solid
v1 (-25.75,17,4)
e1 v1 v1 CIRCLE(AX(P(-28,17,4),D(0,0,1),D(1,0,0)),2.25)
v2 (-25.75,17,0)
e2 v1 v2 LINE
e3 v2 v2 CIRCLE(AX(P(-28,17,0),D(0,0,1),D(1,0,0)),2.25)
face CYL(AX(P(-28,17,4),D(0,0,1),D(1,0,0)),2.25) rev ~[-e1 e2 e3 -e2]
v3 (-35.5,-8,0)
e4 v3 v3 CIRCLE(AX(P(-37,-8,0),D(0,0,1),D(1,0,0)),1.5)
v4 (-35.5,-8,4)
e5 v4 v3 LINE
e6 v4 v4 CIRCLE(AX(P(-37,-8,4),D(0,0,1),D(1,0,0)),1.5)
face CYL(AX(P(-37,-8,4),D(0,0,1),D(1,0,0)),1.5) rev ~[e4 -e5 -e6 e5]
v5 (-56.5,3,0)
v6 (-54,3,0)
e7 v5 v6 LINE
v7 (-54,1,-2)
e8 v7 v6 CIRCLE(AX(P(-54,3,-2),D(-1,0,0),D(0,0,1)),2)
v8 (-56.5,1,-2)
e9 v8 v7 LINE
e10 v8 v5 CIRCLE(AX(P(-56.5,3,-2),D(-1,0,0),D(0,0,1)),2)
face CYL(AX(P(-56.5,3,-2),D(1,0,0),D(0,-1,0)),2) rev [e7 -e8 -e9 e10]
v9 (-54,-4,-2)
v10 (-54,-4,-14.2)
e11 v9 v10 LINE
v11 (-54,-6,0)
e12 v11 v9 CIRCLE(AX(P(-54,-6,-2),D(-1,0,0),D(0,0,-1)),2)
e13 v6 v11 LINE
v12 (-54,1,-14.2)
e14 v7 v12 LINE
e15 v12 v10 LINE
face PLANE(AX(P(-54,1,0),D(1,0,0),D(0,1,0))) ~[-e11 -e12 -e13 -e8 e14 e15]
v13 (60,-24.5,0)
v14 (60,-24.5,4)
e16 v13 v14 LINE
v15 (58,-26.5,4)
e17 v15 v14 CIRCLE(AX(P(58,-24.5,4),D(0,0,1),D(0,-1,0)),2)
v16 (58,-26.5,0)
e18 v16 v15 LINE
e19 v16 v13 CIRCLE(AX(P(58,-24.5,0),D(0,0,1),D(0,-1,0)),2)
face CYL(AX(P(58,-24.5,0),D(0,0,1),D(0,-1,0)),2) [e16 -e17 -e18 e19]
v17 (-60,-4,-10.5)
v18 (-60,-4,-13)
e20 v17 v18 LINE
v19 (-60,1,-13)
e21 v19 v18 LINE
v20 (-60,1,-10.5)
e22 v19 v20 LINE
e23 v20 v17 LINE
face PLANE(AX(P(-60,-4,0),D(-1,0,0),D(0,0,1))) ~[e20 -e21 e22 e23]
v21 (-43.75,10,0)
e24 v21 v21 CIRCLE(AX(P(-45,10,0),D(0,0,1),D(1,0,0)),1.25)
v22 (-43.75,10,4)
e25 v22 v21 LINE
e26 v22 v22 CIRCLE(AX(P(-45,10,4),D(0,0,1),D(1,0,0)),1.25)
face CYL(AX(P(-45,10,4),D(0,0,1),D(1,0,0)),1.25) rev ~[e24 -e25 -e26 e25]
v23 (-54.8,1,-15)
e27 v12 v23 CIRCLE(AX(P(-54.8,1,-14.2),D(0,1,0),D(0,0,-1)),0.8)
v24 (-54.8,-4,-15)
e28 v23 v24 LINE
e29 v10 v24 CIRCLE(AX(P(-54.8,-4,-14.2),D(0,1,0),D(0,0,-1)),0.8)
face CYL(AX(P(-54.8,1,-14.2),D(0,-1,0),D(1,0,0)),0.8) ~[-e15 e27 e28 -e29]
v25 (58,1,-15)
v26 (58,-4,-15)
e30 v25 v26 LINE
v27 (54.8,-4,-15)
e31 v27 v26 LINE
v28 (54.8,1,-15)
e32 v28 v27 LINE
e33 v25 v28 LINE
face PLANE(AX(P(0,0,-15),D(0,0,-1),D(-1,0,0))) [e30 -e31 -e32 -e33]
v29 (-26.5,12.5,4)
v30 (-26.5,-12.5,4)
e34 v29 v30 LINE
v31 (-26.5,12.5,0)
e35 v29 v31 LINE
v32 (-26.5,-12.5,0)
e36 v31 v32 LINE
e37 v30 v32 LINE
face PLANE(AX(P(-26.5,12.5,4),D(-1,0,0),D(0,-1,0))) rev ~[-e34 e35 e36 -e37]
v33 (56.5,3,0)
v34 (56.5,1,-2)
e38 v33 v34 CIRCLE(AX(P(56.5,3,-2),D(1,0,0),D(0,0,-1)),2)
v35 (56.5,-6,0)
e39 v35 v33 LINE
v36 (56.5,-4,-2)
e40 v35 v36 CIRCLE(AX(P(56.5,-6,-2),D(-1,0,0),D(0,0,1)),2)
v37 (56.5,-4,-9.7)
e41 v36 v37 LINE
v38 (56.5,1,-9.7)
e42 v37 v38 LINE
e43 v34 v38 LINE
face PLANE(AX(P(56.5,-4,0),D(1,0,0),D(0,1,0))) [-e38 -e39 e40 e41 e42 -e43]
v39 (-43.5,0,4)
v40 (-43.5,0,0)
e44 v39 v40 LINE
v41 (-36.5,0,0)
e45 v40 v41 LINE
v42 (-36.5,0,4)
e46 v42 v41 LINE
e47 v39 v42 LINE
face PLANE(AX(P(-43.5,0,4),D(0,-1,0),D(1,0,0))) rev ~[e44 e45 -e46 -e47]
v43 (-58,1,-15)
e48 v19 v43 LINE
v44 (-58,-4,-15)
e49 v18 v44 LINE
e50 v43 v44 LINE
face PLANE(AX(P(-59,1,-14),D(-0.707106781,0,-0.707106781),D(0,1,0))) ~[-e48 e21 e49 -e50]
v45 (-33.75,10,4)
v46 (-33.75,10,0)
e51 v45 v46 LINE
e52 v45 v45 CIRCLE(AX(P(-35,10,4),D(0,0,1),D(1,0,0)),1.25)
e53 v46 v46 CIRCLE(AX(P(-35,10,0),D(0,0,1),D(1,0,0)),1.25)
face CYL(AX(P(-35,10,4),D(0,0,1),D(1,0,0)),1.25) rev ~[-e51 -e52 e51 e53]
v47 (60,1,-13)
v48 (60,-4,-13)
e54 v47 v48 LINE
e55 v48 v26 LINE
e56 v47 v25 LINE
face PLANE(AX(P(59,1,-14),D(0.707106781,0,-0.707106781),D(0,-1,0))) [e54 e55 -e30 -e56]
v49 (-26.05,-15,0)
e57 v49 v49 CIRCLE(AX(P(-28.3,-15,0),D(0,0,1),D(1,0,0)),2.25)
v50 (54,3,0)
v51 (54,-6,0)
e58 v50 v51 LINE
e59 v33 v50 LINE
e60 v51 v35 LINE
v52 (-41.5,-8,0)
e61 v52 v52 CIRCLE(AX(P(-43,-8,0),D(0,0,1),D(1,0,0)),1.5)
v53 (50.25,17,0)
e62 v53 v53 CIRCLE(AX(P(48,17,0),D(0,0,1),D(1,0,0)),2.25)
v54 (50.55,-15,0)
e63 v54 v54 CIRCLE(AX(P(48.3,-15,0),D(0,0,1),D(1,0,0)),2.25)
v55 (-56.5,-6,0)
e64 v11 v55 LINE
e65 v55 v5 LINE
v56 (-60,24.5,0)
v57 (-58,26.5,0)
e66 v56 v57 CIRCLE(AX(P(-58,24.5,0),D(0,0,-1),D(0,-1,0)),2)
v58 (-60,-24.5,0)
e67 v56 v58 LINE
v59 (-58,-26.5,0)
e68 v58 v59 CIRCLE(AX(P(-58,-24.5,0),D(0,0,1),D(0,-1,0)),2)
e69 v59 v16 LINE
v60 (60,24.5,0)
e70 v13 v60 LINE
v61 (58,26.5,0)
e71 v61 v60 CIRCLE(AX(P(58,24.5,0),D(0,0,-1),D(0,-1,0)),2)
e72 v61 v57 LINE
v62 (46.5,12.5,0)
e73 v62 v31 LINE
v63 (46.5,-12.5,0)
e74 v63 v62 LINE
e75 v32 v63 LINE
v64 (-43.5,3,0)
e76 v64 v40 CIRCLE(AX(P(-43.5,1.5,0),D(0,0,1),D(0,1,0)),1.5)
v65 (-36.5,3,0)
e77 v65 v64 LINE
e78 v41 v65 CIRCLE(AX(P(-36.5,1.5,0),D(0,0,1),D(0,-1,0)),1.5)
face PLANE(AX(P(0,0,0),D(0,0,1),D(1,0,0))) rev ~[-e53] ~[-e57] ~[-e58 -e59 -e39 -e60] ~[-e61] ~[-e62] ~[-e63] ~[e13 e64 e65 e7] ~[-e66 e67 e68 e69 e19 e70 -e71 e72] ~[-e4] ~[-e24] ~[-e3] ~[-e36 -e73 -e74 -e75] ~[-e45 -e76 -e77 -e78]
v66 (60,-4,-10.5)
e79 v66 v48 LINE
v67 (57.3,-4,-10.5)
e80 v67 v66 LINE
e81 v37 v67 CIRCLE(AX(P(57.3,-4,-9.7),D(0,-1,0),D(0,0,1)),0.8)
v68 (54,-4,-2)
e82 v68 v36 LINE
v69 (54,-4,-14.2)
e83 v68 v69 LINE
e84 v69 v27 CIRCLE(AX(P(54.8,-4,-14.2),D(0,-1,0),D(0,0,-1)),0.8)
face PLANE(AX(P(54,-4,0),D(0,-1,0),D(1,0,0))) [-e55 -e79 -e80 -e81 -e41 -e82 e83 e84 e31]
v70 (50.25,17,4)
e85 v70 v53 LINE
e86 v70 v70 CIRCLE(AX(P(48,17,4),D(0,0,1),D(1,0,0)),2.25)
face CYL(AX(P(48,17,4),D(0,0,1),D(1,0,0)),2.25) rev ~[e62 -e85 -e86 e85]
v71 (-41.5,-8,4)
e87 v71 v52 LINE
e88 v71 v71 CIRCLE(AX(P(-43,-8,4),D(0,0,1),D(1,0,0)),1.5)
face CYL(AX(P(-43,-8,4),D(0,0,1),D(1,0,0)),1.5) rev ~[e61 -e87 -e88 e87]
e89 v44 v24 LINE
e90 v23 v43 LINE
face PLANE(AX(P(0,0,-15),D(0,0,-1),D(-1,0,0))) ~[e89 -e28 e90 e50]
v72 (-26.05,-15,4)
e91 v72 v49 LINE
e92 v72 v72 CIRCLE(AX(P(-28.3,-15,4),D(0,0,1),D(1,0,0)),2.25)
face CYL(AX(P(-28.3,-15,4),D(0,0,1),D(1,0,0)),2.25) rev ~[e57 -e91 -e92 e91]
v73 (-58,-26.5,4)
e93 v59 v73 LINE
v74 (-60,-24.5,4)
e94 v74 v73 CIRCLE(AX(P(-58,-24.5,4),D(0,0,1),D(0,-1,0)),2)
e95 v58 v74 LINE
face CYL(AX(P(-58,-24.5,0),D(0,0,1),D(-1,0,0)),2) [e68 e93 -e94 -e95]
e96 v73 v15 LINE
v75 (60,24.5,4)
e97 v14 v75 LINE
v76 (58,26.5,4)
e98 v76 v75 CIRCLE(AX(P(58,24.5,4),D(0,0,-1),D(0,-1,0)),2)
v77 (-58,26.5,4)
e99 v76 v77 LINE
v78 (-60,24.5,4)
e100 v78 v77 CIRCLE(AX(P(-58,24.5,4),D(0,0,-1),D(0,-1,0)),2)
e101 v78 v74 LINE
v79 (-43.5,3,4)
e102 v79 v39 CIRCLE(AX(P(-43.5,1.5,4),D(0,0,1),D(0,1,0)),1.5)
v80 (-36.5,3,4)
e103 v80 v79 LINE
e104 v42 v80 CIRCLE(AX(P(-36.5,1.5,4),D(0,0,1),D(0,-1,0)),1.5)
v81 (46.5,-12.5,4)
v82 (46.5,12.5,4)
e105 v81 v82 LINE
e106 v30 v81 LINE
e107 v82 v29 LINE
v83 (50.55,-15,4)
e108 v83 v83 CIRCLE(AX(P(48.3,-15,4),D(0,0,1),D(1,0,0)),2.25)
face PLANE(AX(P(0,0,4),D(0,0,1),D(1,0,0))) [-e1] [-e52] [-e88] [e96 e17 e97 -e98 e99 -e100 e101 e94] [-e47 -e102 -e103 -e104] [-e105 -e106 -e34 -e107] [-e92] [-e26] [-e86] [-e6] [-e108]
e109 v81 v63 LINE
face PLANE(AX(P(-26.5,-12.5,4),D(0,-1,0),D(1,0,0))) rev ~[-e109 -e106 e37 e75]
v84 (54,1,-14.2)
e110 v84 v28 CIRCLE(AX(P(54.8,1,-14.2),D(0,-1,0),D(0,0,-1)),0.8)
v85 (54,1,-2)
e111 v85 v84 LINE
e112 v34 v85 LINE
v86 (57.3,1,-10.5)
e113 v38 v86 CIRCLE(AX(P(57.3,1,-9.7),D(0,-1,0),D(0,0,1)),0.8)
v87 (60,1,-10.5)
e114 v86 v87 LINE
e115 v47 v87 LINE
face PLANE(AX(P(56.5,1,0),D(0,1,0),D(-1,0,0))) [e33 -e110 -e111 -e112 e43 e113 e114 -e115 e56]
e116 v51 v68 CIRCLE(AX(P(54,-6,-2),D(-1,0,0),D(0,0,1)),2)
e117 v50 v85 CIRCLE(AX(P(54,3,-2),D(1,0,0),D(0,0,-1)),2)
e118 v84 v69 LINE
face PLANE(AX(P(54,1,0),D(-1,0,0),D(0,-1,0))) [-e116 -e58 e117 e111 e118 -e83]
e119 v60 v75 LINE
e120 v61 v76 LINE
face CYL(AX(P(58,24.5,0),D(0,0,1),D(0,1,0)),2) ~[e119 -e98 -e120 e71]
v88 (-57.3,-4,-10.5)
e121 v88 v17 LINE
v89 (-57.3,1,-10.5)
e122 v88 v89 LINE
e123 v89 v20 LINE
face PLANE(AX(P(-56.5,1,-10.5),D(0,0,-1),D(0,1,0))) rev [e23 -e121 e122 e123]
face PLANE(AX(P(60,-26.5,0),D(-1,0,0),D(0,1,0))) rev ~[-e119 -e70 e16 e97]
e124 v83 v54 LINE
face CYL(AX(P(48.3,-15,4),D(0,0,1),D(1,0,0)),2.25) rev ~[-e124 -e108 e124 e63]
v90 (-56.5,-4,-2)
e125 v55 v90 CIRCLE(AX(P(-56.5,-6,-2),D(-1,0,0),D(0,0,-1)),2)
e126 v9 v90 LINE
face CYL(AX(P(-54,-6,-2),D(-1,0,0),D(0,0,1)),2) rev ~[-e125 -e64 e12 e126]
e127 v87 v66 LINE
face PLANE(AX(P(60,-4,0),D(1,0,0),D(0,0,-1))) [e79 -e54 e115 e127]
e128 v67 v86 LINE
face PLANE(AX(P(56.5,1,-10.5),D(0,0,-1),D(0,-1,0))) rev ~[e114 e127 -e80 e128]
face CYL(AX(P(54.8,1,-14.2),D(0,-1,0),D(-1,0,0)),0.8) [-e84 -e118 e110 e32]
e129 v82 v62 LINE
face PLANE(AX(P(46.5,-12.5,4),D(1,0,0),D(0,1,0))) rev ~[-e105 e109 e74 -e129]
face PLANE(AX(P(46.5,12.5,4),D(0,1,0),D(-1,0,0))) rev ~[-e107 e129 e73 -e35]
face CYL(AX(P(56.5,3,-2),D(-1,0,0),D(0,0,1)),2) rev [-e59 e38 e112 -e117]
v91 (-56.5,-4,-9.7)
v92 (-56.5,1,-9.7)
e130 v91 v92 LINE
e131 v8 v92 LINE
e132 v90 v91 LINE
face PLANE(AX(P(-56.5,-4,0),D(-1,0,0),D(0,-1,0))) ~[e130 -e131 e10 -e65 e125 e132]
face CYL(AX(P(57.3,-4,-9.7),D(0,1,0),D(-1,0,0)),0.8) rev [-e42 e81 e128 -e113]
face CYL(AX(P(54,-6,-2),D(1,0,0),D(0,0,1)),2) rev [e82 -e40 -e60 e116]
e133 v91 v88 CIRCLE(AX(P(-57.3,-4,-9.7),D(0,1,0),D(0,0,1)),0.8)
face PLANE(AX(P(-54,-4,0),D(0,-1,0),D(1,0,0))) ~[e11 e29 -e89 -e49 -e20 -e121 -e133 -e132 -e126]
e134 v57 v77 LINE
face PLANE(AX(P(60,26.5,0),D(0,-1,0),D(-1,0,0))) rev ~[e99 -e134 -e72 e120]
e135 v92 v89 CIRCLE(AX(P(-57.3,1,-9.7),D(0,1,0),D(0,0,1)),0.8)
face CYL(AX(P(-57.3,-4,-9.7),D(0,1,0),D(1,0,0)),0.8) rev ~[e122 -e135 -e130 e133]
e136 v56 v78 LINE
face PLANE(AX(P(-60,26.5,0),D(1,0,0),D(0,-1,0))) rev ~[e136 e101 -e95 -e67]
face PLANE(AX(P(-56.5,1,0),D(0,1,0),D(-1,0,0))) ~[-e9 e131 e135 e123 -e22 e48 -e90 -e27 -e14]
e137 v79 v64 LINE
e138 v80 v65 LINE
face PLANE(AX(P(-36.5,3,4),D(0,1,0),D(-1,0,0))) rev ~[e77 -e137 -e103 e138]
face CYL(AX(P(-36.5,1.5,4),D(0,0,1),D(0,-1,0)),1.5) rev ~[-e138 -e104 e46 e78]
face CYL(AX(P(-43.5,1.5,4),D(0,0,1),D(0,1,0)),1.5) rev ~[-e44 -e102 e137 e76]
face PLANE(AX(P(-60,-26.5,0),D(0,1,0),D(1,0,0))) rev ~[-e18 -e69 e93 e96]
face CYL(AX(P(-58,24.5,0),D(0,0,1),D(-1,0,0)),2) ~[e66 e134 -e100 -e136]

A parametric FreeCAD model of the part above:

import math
import FreeCAD as App
import Part
import Sketcher
from FreeCAD import Vector


def edges_at(feature, points):
    """Names of the edges that pass closest to the given points."""
    edges = feature.Shape.Edges
    near = lambda p: min(range(len(edges)), key=lambda i: edges[i].distToShape(Part.Vertex(*p))[0])
    return sorted({f"Edge{near(p) + 1}" for p in points})


def add_polygon(sketch, points):
    """Adds a closed chain of lines whose ends are joined by coincident constraints."""
    first, n = sketch.GeometryCount, len(points)
    for a, b in zip(points, points[1:] + points[:1]):
        sketch.addGeometry(Part.LineSegment(App.Vector(*a, 0), App.Vector(*b, 0)), False)
    for i in range(n):
        sketch.addConstraint(Sketcher.Constraint("Coincident", first + i, 2, first + (i + 1) % n, 1))

doc = App.newDocument("Part")
body = doc.addObject("PartDesign::Body", "Body")

# Sketch on XY plane
sketch1 = doc.addObject("Sketcher::SketchObject", "Sketch")
body.addObject(sketch1)
sketch1.AttachmentSupport = (doc.XY_Plane, [""])
sketch1.MapMode = "FlatFace"
add_polygon(sketch1, [(-60, 26.5), (-60, -26.5), (60, -26.5), (60, 26.5)])  # lines 0-3
sketch1.addConstraint([
    Sketcher.Constraint("Vertical", 0),
    Sketcher.Constraint("Horizontal", 1),
    Sketcher.Constraint("Vertical", 2),
    Sketcher.Constraint("Horizontal", 3),
    Sketcher.Constraint("Symmetric", 0, 2, 2, 2, -1, 1),
    Sketcher.Constraint("DistanceX", 1, 1, 1, 2, 120.0),
    Sketcher.Constraint("DistanceY", 0, 2, 0, 1, 53.0),
])
pad1 = doc.addObject("PartDesign::Pad", "Pad")
body.addObject(pad1)
pad1.Profile = sketch1
pad1.Length = 4

# Sketch on XY plane
sketch2 = doc.addObject("Sketcher::SketchObject", "Sketch001")
body.addObject(sketch2)
sketch2.AttachmentSupport = (doc.XY_Plane, [""])
sketch2.MapMode = "FlatFace"
add_polygon(sketch2, [(56.5, -4), (54, -4), (54, 1), (56.5, 1)])  # lines 0-3
sketch2.addConstraint([
    Sketcher.Constraint("Horizontal", 0),
    Sketcher.Constraint("Vertical", 1),
    Sketcher.Constraint("Horizontal", 2),
    Sketcher.Constraint("Vertical", 3),
    Sketcher.Constraint("DistanceY", 1, 1, 1, 2, 5.0),
    Sketcher.Constraint("DistanceX", 0, 2, 0, 1, 2.5),
    Sketcher.Constraint("DistanceX", -1, 1, 0, 2, 54.0),
    Sketcher.Constraint("DistanceY", 0, 2, -1, 1, 4.0),
])
pad2 = doc.addObject("PartDesign::Pad", "Pad001")
body.addObject(pad2)
pad2.Profile = sketch2
pad2.Length = 15
pad2.Reversed = True

# Sketch on YZ plane
sketch3 = doc.addObject("Sketcher::SketchObject", "Sketch002")
body.addObject(sketch3)
sketch3.AttachmentSupport = (doc.YZ_Plane, [""])
sketch3.MapMode = "FlatFace"
sketch3.AttachmentOffset = App.Placement(Vector(0, 0, 56.5), App.Rotation())
add_polygon(sketch3, [(1, -15), (1, -10.5), (-4, -10.5), (-4, -15)])  # lines 0-3
sketch3.addConstraint([
    Sketcher.Constraint("Vertical", 0),
    Sketcher.Constraint("Horizontal", 1),
    Sketcher.Constraint("Vertical", 2),
    Sketcher.Constraint("Horizontal", 3),
    Sketcher.Constraint("DistanceX", 1, 2, 1, 1, 5.0),
    Sketcher.Constraint("DistanceY", 0, 1, 0, 2, 4.5),
    Sketcher.Constraint("DistanceX", -1, 1, 0, 2, 1.0),
    Sketcher.Constraint("DistanceY", 2, 2, -1, 1, 15.0),
])
pad3 = doc.addObject("PartDesign::Pad", "Pad002")
body.addObject(pad3)
pad3.Profile = sketch3
pad3.Length = 3.5
doc.recompute()

mirrored = doc.addObject("PartDesign::Mirrored", "Mirrored")
body.addObject(mirrored)
mirrored.Originals = [pad2, pad3]
mirrored.MirrorPlane = (doc.YZ_Plane, [""])
body.Tip = mirrored

# Sketch on XY plane
sketch4 = doc.addObject("Sketcher::SketchObject", "Sketch003")
body.addObject(sketch4)
sketch4.AttachmentSupport = (doc.XY_Plane, [""])
sketch4.MapMode = "FlatFace"
sketch4.AttachmentOffset = App.Placement(Vector(0, 0, 4), App.Rotation())
add_polygon(sketch4, [(-26.5, 12.5), (-26.5, -12.5), (46.5, -12.5), (46.5, 12.5)])  # lines 0-3
sketch4.addConstraint([
    Sketcher.Constraint("Vertical", 0),
    Sketcher.Constraint("Horizontal", 1),
    Sketcher.Constraint("Vertical", 2),
    Sketcher.Constraint("Horizontal", 3),
    Sketcher.Constraint("DistanceX", 1, 1, 1, 2, 73.0),
    Sketcher.Constraint("DistanceY", 0, 2, 0, 1, 25.0),
    Sketcher.Constraint("DistanceX", 0, 2, -1, 1, 26.5),
    Sketcher.Constraint("DistanceY", 0, 2, -1, 1, 12.5),
])
pocket1 = doc.addObject("PartDesign::Pocket", "Pocket")
body.addObject(pocket1)
pocket1.Profile = sketch4
pocket1.Type = "ThroughAll"

# Sketch on XY plane
sketch5 = doc.addObject("Sketcher::SketchObject", "Sketch004")
body.addObject(sketch5)
sketch5.AttachmentSupport = (doc.XY_Plane, [""])
sketch5.MapMode = "FlatFace"
sketch5.AttachmentOffset = App.Placement(Vector(0, 0, 4), App.Rotation())
sketch5.addGeometry([
    Part.ArcOfCircle(Part.Circle(Vector(-43.5, 1.5, 0), Vector(0, 0, 1), 1.5), math.radians(90), math.radians(270)),  # 0
    Part.LineSegment(Vector(-43.5, 0, 0), Vector(-36.5, 0, 0)),  # 1
    Part.ArcOfCircle(Part.Circle(Vector(-36.5, 1.5, 0), Vector(0, 0, 1), 1.5), math.radians(-90), math.radians(90)),  # 2
    Part.LineSegment(Vector(-36.5, 3, 0), Vector(-43.5, 3, 0)),  # 3
    Part.Circle(Vector(-45, 10, 0), Vector(0, 0, 1), 1.25),  # 4
    Part.Circle(Vector(-35, 10, 0), Vector(0, 0, 1), 1.25),  # 5
], False)
sketch5.addConstraint([
    Sketcher.Constraint("Tangent", 0, 2, 1, 1),
    Sketcher.Constraint("Tangent", 1, 2, 2, 1),
    Sketcher.Constraint("Tangent", 2, 2, 3, 1),
    Sketcher.Constraint("Tangent", 3, 2, 0, 1),
    Sketcher.Constraint("Horizontal", 1),
    Sketcher.Constraint("Horizontal", 3),
    Sketcher.Constraint("Equal", 4, 5),
    Sketcher.Constraint("PointOnObject", 0, 2, -1),
    Sketcher.Constraint("Horizontal", 4, 3, 5, 3),
    Sketcher.Constraint("Diameter", 4, 2.5),
    Sketcher.Constraint("Radius", 0, 1.5),
    Sketcher.Constraint("DistanceX", 1, 1, 1, 2, 7.0),
    Sketcher.Constraint("DistanceY", -1, 1, 4, 3, 10.0),
    Sketcher.Constraint("DistanceX", 4, 3, 5, 3, 10.0),
    Sketcher.Constraint("DistanceX", 4, 3, -1, 1, 45.0),
    Sketcher.Constraint("DistanceX", 0, 3, -1, 1, 43.5),
])
pocket2 = doc.addObject("PartDesign::Pocket", "Pocket001")
body.addObject(pocket2)
pocket2.Profile = sketch5
pocket2.Length = 10

# Sketch on XY plane
sketch6 = doc.addObject("Sketcher::SketchObject", "Sketch005")
body.addObject(sketch6)
sketch6.AttachmentSupport = (doc.XY_Plane, [""])
sketch6.MapMode = "FlatFace"
sketch6.AttachmentOffset = App.Placement(Vector(0, 0, 4), App.Rotation())
sketch6.addGeometry([
    Part.Circle(Vector(-28, 17, 0), Vector(0, 0, 1), 2.25),
    Part.Circle(Vector(48, 17, 0), Vector(0, 0, 1), 2.25),
    Part.Circle(Vector(-28.3, -15, 0), Vector(0, 0, 1), 2.25),
    Part.Circle(Vector(48.3, -15, 0), Vector(0, 0, 1), 2.25),
], False)
sketch6.addConstraint([
    Sketcher.Constraint("Equal", 0, 1),
    Sketcher.Constraint("Equal", 1, 2),
    Sketcher.Constraint("Equal", 2, 3),
    Sketcher.Constraint("Horizontal", 0, 3, 1, 3),
    Sketcher.Constraint("Horizontal", 2, 3, 3, 3),
    Sketcher.Constraint("Diameter", 0, 4.5),
    Sketcher.Constraint("DistanceX", 0, 3, -1, 1, 28.0),
    Sketcher.Constraint("DistanceY", -1, 1, 0, 3, 17.0),
    Sketcher.Constraint("DistanceX", -1, 1, 1, 3, 48.0),
    Sketcher.Constraint("DistanceY", 2, 3, -1, 1, 15.0),
    Sketcher.Constraint("DistanceX", 2, 3, -1, 1, 28.3),
    Sketcher.Constraint("DistanceX", -1, 1, 3, 3, 48.3),
])
pocket3 = doc.addObject("PartDesign::Pocket", "Pocket002")
body.addObject(pocket3)
pocket3.Profile = sketch6
pocket3.Length = 10
doc.recompute()

fillet = doc.addObject("PartDesign::Fillet", "Fillet")
body.addObject(fillet)
fillet.Base = (pocket3, edges_at(pocket3, [
    (-60, 26.5, 2),
    (60, 26.5, 2),
    (-60, -26.5, 2),
    (60, -26.5, 2),
]))
fillet.Radius = 2
doc.recompute()

fillet2 = doc.addObject("PartDesign::Fillet", "Fillet001")
body.addObject(fillet2)
fillet2.Base = (fillet, edges_at(fillet, [
    (56.5, -1.5, -10.5),
    (54, -1.5, -15),
    (-54, -1.5, -15),
    (-56.5, -1.5, -10.5),
]))
fillet2.Radius = 0.8
doc.recompute()

fillet3 = doc.addObject("PartDesign::Fillet", "Fillet002")
body.addObject(fillet3)
fillet3.Base = (fillet2, edges_at(fillet2, [
    (55.25, 1, 0),
    (55.25, -4, 0),
    (-55.25, 1, 0),
    (-55.25, -4, 0),
]))
fillet3.Radius = 2
doc.recompute()

chamfer = doc.addObject("PartDesign::Chamfer", "Chamfer")
body.addObject(chamfer)
chamfer.Base = (fillet3, edges_at(fillet3, [(60, -1.5, -15), (-60, -1.5, -15)]))
chamfer.Size = 2

# Sketch on XY plane
sketch7 = doc.addObject("Sketcher::SketchObject", "Sketch006")
body.addObject(sketch7)
sketch7.AttachmentSupport = (doc.XY_Plane, [""])
sketch7.MapMode = "FlatFace"
sketch7.AttachmentOffset = App.Placement(Vector(0, 0, 4), App.Rotation())
sketch7.addGeometry([
    Part.Circle(Vector(-43, -8, 0), Vector(0, 0, 1), 1.5),
    Part.Circle(Vector(-37, -8, 0), Vector(0, 0, 1), 1.5),
], False)
sketch7.addConstraint([
    Sketcher.Constraint("Equal", 0, 1),
    Sketcher.Constraint("Horizontal", 0, 3, 1, 3),
    Sketcher.Constraint("Diameter", 0, 3.0),
    Sketcher.Constraint("DistanceY", 0, 3, -1, 1, 8.0),
    Sketcher.Constraint("DistanceX", 0, 3, -1, 1, 43.0),
    Sketcher.Constraint("DistanceX", 1, 3, -1, 1, 37.0),
])
pocket4 = doc.addObject("PartDesign::Pocket", "Pocket003")
body.addObject(pocket4)
pocket4.Profile = sketch7
pocket4.Length = 10

doc.recompute()
